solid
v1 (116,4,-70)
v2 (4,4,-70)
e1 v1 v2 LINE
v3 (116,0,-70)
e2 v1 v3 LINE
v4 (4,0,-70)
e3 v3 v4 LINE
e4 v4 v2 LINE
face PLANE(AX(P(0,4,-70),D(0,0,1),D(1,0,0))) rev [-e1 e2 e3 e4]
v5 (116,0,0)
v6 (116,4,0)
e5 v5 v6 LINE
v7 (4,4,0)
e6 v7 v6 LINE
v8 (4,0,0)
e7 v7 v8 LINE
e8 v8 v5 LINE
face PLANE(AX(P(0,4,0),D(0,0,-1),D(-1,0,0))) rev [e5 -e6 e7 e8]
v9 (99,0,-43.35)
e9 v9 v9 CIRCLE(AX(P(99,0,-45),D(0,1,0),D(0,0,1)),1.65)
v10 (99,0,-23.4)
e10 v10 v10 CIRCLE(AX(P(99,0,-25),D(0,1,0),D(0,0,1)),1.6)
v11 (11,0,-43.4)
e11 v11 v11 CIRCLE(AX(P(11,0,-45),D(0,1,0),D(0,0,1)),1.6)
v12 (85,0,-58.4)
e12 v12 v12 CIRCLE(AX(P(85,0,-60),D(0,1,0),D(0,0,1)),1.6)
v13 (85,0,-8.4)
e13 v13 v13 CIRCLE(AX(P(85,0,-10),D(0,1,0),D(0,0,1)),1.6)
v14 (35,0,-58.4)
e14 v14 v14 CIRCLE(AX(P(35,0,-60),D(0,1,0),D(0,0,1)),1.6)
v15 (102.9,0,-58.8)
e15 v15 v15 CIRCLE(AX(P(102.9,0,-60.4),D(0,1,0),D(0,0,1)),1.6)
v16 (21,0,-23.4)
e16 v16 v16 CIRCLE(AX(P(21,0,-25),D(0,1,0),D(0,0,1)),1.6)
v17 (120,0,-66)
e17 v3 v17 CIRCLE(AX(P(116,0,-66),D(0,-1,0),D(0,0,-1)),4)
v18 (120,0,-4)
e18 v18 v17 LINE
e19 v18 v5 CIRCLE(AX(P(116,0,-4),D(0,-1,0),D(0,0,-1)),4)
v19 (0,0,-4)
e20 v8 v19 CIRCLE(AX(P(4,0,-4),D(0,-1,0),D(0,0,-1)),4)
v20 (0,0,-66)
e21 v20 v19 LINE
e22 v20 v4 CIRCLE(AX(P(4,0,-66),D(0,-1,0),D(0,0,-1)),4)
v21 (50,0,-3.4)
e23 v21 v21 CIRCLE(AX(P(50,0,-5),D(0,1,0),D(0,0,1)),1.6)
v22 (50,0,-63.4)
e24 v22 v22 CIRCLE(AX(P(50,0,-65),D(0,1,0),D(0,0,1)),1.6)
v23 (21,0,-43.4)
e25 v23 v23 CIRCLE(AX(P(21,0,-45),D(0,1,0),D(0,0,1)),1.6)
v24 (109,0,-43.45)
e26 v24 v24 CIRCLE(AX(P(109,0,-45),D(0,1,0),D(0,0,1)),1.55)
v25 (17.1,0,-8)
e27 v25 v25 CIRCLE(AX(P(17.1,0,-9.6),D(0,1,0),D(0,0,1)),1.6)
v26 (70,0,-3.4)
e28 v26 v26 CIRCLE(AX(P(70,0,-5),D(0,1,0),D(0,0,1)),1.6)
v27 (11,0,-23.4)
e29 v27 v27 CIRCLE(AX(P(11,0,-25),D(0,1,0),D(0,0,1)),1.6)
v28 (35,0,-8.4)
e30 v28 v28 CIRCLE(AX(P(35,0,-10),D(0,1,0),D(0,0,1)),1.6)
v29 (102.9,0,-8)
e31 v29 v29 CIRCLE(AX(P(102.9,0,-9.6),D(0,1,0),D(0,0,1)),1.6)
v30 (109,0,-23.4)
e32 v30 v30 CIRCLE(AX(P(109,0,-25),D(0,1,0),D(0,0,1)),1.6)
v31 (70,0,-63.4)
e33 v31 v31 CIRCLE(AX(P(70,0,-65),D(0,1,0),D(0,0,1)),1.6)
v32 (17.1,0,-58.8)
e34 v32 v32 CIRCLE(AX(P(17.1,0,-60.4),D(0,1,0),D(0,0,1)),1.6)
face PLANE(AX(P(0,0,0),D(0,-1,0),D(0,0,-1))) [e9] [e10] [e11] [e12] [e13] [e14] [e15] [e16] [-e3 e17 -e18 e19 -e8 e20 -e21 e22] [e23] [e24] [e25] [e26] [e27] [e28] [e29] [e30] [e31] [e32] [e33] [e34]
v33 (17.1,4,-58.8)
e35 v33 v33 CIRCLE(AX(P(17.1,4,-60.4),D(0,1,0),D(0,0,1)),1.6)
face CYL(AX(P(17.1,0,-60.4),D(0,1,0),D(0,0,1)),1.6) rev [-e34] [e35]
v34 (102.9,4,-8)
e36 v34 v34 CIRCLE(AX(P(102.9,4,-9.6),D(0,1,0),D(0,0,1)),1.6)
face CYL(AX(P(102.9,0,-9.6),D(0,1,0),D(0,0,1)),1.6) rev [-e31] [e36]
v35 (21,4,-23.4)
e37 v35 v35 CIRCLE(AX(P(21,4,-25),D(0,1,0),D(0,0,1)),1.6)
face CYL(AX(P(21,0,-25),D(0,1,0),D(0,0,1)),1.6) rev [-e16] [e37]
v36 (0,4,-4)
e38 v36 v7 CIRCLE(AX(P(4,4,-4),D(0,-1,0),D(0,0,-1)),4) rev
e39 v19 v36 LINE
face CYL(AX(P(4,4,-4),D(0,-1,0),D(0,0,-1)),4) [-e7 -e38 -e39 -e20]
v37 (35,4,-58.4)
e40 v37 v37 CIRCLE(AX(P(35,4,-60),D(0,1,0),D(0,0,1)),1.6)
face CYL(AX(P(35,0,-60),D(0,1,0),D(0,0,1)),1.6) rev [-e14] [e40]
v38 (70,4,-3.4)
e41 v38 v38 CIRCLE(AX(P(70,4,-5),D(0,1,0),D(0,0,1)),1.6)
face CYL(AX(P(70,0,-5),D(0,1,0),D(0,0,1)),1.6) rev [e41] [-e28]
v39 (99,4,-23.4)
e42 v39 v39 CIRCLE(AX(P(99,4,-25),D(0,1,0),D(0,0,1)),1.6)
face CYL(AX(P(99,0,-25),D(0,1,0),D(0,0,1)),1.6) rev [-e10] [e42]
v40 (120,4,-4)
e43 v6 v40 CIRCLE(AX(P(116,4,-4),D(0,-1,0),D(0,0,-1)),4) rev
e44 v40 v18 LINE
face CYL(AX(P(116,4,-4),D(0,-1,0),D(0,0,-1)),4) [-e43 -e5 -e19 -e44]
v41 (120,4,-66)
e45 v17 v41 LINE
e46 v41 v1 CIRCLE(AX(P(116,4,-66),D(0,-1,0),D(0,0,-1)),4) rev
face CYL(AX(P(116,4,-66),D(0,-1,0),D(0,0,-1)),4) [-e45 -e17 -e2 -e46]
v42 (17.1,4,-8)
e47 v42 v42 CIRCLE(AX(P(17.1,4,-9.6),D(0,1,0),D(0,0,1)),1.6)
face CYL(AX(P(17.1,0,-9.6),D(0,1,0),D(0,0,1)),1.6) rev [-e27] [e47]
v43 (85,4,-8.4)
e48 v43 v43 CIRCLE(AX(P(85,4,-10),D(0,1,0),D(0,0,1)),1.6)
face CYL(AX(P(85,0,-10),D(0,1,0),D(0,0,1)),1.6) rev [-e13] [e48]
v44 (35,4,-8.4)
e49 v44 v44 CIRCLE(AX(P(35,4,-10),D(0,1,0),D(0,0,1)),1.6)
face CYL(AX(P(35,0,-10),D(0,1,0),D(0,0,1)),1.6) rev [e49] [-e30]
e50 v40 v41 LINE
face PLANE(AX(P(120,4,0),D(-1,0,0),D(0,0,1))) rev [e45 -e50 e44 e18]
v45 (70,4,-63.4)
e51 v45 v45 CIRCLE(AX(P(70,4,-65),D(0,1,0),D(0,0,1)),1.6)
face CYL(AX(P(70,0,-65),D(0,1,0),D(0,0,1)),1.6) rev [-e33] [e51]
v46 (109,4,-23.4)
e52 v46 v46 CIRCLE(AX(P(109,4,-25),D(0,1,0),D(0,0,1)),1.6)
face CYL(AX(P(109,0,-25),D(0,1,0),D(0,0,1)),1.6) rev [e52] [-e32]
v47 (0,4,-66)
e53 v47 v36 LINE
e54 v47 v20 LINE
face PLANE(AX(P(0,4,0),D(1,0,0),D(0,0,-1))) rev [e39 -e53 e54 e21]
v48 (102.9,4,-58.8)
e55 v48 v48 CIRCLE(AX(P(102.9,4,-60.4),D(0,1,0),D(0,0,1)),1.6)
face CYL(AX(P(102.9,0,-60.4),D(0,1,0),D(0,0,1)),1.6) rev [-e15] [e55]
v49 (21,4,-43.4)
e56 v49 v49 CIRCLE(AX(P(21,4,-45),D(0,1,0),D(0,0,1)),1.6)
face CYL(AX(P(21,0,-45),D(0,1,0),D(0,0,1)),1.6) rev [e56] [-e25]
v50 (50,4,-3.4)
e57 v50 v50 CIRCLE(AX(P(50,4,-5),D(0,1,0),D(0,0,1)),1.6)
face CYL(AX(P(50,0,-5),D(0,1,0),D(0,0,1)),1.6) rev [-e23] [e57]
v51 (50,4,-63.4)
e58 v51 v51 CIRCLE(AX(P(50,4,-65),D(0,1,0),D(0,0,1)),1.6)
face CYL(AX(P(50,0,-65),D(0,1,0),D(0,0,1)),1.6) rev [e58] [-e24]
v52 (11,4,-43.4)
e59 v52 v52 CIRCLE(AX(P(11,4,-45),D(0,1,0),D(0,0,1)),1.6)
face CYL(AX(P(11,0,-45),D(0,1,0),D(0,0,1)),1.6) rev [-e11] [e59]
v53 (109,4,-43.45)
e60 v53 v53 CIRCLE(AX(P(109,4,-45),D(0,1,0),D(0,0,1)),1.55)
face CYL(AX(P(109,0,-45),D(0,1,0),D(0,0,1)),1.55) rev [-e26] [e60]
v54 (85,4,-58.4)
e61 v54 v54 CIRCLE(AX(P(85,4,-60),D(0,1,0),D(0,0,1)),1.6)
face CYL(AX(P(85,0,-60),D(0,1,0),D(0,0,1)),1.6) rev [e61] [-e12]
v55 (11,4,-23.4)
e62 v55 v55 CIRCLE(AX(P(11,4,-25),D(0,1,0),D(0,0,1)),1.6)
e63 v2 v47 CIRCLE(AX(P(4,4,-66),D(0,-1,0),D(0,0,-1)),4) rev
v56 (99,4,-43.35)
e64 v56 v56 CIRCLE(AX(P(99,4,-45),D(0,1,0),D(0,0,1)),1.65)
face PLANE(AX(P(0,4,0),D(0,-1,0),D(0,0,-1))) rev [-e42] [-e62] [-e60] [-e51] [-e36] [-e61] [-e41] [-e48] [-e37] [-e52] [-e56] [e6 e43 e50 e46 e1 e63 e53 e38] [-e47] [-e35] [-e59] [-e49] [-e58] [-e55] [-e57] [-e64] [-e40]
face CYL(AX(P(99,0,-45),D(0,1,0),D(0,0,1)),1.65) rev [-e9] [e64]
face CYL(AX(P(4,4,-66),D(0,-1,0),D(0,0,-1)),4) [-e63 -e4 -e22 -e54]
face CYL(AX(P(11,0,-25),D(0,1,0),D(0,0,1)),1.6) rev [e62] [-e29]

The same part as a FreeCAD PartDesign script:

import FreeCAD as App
import Part
import Sketcher
from FreeCAD import Vector


def edges_at(feature, points):
    """Names of the edges that pass closest to the given points."""
    edges = feature.Shape.Edges
    near = lambda p: min(range(len(edges)), key=lambda i: edges[i].distToShape(Part.Vertex(*p))[0])
    return sorted({f"Edge{near(p) + 1}" for p in points})


def add_polygon(sketch, points):
    """Adds a closed chain of lines whose ends are joined by coincident constraints."""
    first, n = sketch.GeometryCount, len(points)
    for a, b in zip(points, points[1:] + points[:1]):
        sketch.addGeometry(Part.LineSegment(App.Vector(*a, 0), App.Vector(*b, 0)), False)
    for i in range(n):
        sketch.addConstraint(Sketcher.Constraint("Coincident", first + i, 2, first + (i + 1) % n, 1))

doc = App.newDocument("Part")
body = doc.addObject("PartDesign::Body", "Body")

sketch1 = body.newObject("Sketcher::SketchObject", "Sketch")
sketch1.AttachmentSupport = (doc.getObject("XZ_Plane"), [""])
sketch1.MapMode = "FlatFace"
add_polygon(sketch1, [(0, -70), (0, 0), (120, 0), (120, -70)])
sketch1.addConstraint(Sketcher.Constraint("Vertical", 0))
sketch1.addConstraint(Sketcher.Constraint("Horizontal", 1))
sketch1.addConstraint(Sketcher.Constraint("Vertical", 2))
sketch1.addConstraint(Sketcher.Constraint("Horizontal", 3))
sketch1.addConstraint(Sketcher.Constraint("Coincident", 0, 2, -1, 1))
sketch1.addConstraint(Sketcher.Constraint("DistanceX", 1, 1, 1, 2, 120.0))
sketch1.addConstraint(Sketcher.Constraint("DistanceY", 0, 1, 0, 2, 70.0))
pad1 = body.newObject("PartDesign::Pad", "Pad")
pad1.Profile = sketch1
pad1.Length = 4
pad1.Reversed = True

sketch2 = body.newObject("Sketcher::SketchObject", "Sketch001")
sketch2.AttachmentSupport = (doc.getObject("XZ_Plane"), [""])
sketch2.MapMode = "FlatFace"
sketch2.AttachmentOffset = App.Placement(Vector(0, 0, -4), App.Rotation())
sketch2.addGeometry(Part.Circle(Vector(11, -45, 0), Vector(0, 0, 1), 1.6), False)
sketch2.addGeometry(Part.Circle(Vector(21, -45, 0), Vector(0, 0, 1), 1.6), False)
sketch2.addGeometry(Part.Circle(Vector(21, -25, 0), Vector(0, 0, 1), 1.6), False)
sketch2.addGeometry(Part.Circle(Vector(11, -25, 0), Vector(0, 0, 1), 1.6), False)
sketch2.addGeometry(Part.Circle(Vector(109, -45, 0), Vector(0, 0, 1), 1.6), False)
sketch2.addGeometry(Part.Circle(Vector(99, -45, 0), Vector(0, 0, 1), 1.6), False)
sketch2.addGeometry(Part.Circle(Vector(109, -25, 0), Vector(0, 0, 1), 1.6), False)
sketch2.addGeometry(Part.Circle(Vector(99, -25, 0), Vector(0, 0, 1), 1.6), False)
sketch2.addGeometry(Part.Circle(Vector(102.9, -9.6, 0), Vector(0, 0, 1), 1.6), False)
sketch2.addGeometry(Part.Circle(Vector(17.1, -9.6, 0), Vector(0, 0, 1), 1.6), False)
sketch2.addGeometry(Part.Circle(Vector(17.1, -60.4, 0), Vector(0, 0, 1), 1.6), False)
sketch2.addGeometry(Part.Circle(Vector(102.9, -60.4, 0), Vector(0, 0, 1), 1.6), False)
sketch2.addGeometry(Part.Circle(Vector(85, -60, 0), Vector(0, 0, 1), 1.6), False)
sketch2.addGeometry(Part.Circle(Vector(85, -10, 0), Vector(0, 0, 1), 1.6), False)
sketch2.addGeometry(Part.Circle(Vector(35, -10, 0), Vector(0, 0, 1), 1.6), False)
sketch2.addGeometry(Part.Circle(Vector(35, -60, 0), Vector(0, 0, 1), 1.6), False)
sketch2.addConstraint(Sketcher.Constraint("Equal", 0, 1))
sketch2.addConstraint(Sketcher.Constraint("Equal", 1, 2))
sketch2.addConstraint(Sketcher.Constraint("Equal", 2, 3))
sketch2.addConstraint(Sketcher.Constraint("Equal", 3, 6))
sketch2.addConstraint(Sketcher.Constraint("Equal", 6, 7))
sketch2.addConstraint(Sketcher.Constraint("Equal", 7, 8))
sketch2.addConstraint(Sketcher.Constraint("Equal", 8, 9))
sketch2.addConstraint(Sketcher.Constraint("Equal", 9, 10))
sketch2.addConstraint(Sketcher.Constraint("Equal", 10, 11))
sketch2.addConstraint(Sketcher.Constraint("Equal", 11, 12))
sketch2.addConstraint(Sketcher.Constraint("Equal", 12, 13))
sketch2.addConstraint(Sketcher.Constraint("Equal", 13, 14))
sketch2.addConstraint(Sketcher.Constraint("Equal", 14, 15))
sketch2.addConstraint(Sketcher.Constraint("Horizontal", 0, 3, 1, 3))
sketch2.addConstraint(Sketcher.Constraint("Horizontal", 2, 3, 3, 3))
sketch2.addConstraint(Sketcher.Constraint("Horizontal", 1, 3, 4, 3))
sketch2.addConstraint(Sketcher.Constraint("Horizontal", 4, 3, 5, 3))
sketch2.addConstraint(Sketcher.Constraint("Horizontal", 3, 3, 6, 3))
sketch2.addConstraint(Sketcher.Constraint("Horizontal", 6, 3, 7, 3))
sketch2.addConstraint(Sketcher.Constraint("Horizontal", 8, 3, 9, 3))
sketch2.addConstraint(Sketcher.Constraint("Horizontal", 10, 3, 11, 3))
sketch2.addConstraint(Sketcher.Constraint("Horizontal", 13, 3, 14, 3))
sketch2.addConstraint(Sketcher.Constraint("Horizontal", 12, 3, 15, 3))
sketch2.addConstraint(Sketcher.Constraint("Vertical", 1, 3, 2, 3))
sketch2.addConstraint(Sketcher.Constraint("Vertical", 0, 3, 3, 3))
sketch2.addConstraint(Sketcher.Constraint("Vertical", 4, 3, 6, 3))
sketch2.addConstraint(Sketcher.Constraint("Vertical", 5, 3, 7, 3))
sketch2.addConstraint(Sketcher.Constraint("Vertical", 9, 3, 10, 3))
sketch2.addConstraint(Sketcher.Constraint("Vertical", 8, 3, 11, 3))
sketch2.addConstraint(Sketcher.Constraint("Vertical", 12, 3, 13, 3))
sketch2.addConstraint(Sketcher.Constraint("Vertical", 14, 3, 15, 3))
sketch2.addConstraint(Sketcher.Constraint("Diameter", 0, 3.2))
sketch2.addConstraint(Sketcher.Constraint("Diameter", 4, 3.1))
sketch2.addConstraint(Sketcher.Constraint("Diameter", 5, 3.3))
sketch2.addConstraint(Sketcher.Constraint("DistanceX", -1, 1, 0, 3, 11.0))
sketch2.addConstraint(Sketcher.Constraint("DistanceY", 0, 3, -1, 1, 45.0))
sketch2.addConstraint(Sketcher.Constraint("DistanceX", -1, 1, 1, 3, 21.0))
sketch2.addConstraint(Sketcher.Constraint("DistanceY", 2, 3, -1, 1, 25.0))
sketch2.addConstraint(Sketcher.Constraint("DistanceX", -1, 1, 4, 3, 109.0))
sketch2.addConstraint(Sketcher.Constraint("DistanceX", -1, 1, 5, 3, 99.0))
sketch2.addConstraint(Sketcher.Constraint("DistanceX", -1, 1, 12, 3, 85.0))
sketch2.addConstraint(Sketcher.Constraint("DistanceY", 12, 3, -1, 1, 60.0))
sketch2.addConstraint(Sketcher.Constraint("DistanceY", 13, 3, -1, 1, 10.0))
sketch2.addConstraint(Sketcher.Constraint("DistanceX", -1, 1, 14, 3, 35.0))
sketch2.addConstraint(Sketcher.Constraint("DistanceX", -1, 1, 8, 3, 102.9))
sketch2.addConstraint(Sketcher.Constraint("DistanceY", 8, 3, -1, 1, 9.6))
sketch2.addConstraint(Sketcher.Constraint("DistanceX", -1, 1, 9, 3, 17.1))
sketch2.addConstraint(Sketcher.Constraint("DistanceY", 10, 3, -1, 1, 60.4))
pocket1 = body.newObject("PartDesign::Pocket", "Pocket")
pocket1.Profile = sketch2
pocket1.Length = 4
pocket1.Reversed = True

sketch3 = body.newObject("Sketcher::SketchObject", "Sketch002")
sketch3.AttachmentSupport = (doc.getObject("XZ_Plane"), [""])
sketch3.MapMode = "FlatFace"
sketch3.AttachmentOffset = App.Placement(Vector(0, 0, -4), App.Rotation())
sketch3.addGeometry(Part.Circle(Vector(50, -5, 0), Vector(0, 0, 1), 1.6), False)
sketch3.addGeometry(Part.Circle(Vector(70, -5, 0), Vector(0, 0, 1), 1.6), False)
sketch3.addGeometry(Part.Circle(Vector(50, -65, 0), Vector(0, 0, 1), 1.6), False)
sketch3.addGeometry(Part.Circle(Vector(70, -65, 0), Vector(0, 0, 1), 1.6), False)
sketch3.addConstraint(Sketcher.Constraint("Equal", 0, 1))
sketch3.addConstraint(Sketcher.Constraint("Equal", 1, 2))
sketch3.addConstraint(Sketcher.Constraint("Equal", 2, 3))
sketch3.addConstraint(Sketcher.Constraint("Horizontal", 0, 3, 1, 3))
sketch3.addConstraint(Sketcher.Constraint("Horizontal", 2, 3, 3, 3))
sketch3.addConstraint(Sketcher.Constraint("Vertical", 0, 3, 2, 3))
sketch3.addConstraint(Sketcher.Constraint("Vertical", 1, 3, 3, 3))
sketch3.addConstraint(Sketcher.Constraint("Diameter", 0, 3.2))
sketch3.addConstraint(Sketcher.Constraint("DistanceX", -1, 1, 0, 3, 50.0))
sketch3.addConstraint(Sketcher.Constraint("DistanceY", 0, 3, -1, 1, 5.0))
sketch3.addConstraint(Sketcher.Constraint("DistanceX", -1, 1, 1, 3, 70.0))
sketch3.addConstraint(Sketcher.Constraint("DistanceY", 2, 3, -1, 1, 65.0))
pocket2 = body.newObject("PartDesign::Pocket", "Pocket001")
pocket2.Profile = sketch3
pocket2.Length = 4
pocket2.Reversed = True
doc.recompute()

fillet = body.newObject("PartDesign::Fillet", "Fillet")
fillet.Base = (pocket2, edges_at(pocket2, [
    (0, 2, -70),
    (120, 2, -70),
    (120, 2, 0),
    (0, 2, 0),
]))
fillet.Radius = 4

doc.recompute()
